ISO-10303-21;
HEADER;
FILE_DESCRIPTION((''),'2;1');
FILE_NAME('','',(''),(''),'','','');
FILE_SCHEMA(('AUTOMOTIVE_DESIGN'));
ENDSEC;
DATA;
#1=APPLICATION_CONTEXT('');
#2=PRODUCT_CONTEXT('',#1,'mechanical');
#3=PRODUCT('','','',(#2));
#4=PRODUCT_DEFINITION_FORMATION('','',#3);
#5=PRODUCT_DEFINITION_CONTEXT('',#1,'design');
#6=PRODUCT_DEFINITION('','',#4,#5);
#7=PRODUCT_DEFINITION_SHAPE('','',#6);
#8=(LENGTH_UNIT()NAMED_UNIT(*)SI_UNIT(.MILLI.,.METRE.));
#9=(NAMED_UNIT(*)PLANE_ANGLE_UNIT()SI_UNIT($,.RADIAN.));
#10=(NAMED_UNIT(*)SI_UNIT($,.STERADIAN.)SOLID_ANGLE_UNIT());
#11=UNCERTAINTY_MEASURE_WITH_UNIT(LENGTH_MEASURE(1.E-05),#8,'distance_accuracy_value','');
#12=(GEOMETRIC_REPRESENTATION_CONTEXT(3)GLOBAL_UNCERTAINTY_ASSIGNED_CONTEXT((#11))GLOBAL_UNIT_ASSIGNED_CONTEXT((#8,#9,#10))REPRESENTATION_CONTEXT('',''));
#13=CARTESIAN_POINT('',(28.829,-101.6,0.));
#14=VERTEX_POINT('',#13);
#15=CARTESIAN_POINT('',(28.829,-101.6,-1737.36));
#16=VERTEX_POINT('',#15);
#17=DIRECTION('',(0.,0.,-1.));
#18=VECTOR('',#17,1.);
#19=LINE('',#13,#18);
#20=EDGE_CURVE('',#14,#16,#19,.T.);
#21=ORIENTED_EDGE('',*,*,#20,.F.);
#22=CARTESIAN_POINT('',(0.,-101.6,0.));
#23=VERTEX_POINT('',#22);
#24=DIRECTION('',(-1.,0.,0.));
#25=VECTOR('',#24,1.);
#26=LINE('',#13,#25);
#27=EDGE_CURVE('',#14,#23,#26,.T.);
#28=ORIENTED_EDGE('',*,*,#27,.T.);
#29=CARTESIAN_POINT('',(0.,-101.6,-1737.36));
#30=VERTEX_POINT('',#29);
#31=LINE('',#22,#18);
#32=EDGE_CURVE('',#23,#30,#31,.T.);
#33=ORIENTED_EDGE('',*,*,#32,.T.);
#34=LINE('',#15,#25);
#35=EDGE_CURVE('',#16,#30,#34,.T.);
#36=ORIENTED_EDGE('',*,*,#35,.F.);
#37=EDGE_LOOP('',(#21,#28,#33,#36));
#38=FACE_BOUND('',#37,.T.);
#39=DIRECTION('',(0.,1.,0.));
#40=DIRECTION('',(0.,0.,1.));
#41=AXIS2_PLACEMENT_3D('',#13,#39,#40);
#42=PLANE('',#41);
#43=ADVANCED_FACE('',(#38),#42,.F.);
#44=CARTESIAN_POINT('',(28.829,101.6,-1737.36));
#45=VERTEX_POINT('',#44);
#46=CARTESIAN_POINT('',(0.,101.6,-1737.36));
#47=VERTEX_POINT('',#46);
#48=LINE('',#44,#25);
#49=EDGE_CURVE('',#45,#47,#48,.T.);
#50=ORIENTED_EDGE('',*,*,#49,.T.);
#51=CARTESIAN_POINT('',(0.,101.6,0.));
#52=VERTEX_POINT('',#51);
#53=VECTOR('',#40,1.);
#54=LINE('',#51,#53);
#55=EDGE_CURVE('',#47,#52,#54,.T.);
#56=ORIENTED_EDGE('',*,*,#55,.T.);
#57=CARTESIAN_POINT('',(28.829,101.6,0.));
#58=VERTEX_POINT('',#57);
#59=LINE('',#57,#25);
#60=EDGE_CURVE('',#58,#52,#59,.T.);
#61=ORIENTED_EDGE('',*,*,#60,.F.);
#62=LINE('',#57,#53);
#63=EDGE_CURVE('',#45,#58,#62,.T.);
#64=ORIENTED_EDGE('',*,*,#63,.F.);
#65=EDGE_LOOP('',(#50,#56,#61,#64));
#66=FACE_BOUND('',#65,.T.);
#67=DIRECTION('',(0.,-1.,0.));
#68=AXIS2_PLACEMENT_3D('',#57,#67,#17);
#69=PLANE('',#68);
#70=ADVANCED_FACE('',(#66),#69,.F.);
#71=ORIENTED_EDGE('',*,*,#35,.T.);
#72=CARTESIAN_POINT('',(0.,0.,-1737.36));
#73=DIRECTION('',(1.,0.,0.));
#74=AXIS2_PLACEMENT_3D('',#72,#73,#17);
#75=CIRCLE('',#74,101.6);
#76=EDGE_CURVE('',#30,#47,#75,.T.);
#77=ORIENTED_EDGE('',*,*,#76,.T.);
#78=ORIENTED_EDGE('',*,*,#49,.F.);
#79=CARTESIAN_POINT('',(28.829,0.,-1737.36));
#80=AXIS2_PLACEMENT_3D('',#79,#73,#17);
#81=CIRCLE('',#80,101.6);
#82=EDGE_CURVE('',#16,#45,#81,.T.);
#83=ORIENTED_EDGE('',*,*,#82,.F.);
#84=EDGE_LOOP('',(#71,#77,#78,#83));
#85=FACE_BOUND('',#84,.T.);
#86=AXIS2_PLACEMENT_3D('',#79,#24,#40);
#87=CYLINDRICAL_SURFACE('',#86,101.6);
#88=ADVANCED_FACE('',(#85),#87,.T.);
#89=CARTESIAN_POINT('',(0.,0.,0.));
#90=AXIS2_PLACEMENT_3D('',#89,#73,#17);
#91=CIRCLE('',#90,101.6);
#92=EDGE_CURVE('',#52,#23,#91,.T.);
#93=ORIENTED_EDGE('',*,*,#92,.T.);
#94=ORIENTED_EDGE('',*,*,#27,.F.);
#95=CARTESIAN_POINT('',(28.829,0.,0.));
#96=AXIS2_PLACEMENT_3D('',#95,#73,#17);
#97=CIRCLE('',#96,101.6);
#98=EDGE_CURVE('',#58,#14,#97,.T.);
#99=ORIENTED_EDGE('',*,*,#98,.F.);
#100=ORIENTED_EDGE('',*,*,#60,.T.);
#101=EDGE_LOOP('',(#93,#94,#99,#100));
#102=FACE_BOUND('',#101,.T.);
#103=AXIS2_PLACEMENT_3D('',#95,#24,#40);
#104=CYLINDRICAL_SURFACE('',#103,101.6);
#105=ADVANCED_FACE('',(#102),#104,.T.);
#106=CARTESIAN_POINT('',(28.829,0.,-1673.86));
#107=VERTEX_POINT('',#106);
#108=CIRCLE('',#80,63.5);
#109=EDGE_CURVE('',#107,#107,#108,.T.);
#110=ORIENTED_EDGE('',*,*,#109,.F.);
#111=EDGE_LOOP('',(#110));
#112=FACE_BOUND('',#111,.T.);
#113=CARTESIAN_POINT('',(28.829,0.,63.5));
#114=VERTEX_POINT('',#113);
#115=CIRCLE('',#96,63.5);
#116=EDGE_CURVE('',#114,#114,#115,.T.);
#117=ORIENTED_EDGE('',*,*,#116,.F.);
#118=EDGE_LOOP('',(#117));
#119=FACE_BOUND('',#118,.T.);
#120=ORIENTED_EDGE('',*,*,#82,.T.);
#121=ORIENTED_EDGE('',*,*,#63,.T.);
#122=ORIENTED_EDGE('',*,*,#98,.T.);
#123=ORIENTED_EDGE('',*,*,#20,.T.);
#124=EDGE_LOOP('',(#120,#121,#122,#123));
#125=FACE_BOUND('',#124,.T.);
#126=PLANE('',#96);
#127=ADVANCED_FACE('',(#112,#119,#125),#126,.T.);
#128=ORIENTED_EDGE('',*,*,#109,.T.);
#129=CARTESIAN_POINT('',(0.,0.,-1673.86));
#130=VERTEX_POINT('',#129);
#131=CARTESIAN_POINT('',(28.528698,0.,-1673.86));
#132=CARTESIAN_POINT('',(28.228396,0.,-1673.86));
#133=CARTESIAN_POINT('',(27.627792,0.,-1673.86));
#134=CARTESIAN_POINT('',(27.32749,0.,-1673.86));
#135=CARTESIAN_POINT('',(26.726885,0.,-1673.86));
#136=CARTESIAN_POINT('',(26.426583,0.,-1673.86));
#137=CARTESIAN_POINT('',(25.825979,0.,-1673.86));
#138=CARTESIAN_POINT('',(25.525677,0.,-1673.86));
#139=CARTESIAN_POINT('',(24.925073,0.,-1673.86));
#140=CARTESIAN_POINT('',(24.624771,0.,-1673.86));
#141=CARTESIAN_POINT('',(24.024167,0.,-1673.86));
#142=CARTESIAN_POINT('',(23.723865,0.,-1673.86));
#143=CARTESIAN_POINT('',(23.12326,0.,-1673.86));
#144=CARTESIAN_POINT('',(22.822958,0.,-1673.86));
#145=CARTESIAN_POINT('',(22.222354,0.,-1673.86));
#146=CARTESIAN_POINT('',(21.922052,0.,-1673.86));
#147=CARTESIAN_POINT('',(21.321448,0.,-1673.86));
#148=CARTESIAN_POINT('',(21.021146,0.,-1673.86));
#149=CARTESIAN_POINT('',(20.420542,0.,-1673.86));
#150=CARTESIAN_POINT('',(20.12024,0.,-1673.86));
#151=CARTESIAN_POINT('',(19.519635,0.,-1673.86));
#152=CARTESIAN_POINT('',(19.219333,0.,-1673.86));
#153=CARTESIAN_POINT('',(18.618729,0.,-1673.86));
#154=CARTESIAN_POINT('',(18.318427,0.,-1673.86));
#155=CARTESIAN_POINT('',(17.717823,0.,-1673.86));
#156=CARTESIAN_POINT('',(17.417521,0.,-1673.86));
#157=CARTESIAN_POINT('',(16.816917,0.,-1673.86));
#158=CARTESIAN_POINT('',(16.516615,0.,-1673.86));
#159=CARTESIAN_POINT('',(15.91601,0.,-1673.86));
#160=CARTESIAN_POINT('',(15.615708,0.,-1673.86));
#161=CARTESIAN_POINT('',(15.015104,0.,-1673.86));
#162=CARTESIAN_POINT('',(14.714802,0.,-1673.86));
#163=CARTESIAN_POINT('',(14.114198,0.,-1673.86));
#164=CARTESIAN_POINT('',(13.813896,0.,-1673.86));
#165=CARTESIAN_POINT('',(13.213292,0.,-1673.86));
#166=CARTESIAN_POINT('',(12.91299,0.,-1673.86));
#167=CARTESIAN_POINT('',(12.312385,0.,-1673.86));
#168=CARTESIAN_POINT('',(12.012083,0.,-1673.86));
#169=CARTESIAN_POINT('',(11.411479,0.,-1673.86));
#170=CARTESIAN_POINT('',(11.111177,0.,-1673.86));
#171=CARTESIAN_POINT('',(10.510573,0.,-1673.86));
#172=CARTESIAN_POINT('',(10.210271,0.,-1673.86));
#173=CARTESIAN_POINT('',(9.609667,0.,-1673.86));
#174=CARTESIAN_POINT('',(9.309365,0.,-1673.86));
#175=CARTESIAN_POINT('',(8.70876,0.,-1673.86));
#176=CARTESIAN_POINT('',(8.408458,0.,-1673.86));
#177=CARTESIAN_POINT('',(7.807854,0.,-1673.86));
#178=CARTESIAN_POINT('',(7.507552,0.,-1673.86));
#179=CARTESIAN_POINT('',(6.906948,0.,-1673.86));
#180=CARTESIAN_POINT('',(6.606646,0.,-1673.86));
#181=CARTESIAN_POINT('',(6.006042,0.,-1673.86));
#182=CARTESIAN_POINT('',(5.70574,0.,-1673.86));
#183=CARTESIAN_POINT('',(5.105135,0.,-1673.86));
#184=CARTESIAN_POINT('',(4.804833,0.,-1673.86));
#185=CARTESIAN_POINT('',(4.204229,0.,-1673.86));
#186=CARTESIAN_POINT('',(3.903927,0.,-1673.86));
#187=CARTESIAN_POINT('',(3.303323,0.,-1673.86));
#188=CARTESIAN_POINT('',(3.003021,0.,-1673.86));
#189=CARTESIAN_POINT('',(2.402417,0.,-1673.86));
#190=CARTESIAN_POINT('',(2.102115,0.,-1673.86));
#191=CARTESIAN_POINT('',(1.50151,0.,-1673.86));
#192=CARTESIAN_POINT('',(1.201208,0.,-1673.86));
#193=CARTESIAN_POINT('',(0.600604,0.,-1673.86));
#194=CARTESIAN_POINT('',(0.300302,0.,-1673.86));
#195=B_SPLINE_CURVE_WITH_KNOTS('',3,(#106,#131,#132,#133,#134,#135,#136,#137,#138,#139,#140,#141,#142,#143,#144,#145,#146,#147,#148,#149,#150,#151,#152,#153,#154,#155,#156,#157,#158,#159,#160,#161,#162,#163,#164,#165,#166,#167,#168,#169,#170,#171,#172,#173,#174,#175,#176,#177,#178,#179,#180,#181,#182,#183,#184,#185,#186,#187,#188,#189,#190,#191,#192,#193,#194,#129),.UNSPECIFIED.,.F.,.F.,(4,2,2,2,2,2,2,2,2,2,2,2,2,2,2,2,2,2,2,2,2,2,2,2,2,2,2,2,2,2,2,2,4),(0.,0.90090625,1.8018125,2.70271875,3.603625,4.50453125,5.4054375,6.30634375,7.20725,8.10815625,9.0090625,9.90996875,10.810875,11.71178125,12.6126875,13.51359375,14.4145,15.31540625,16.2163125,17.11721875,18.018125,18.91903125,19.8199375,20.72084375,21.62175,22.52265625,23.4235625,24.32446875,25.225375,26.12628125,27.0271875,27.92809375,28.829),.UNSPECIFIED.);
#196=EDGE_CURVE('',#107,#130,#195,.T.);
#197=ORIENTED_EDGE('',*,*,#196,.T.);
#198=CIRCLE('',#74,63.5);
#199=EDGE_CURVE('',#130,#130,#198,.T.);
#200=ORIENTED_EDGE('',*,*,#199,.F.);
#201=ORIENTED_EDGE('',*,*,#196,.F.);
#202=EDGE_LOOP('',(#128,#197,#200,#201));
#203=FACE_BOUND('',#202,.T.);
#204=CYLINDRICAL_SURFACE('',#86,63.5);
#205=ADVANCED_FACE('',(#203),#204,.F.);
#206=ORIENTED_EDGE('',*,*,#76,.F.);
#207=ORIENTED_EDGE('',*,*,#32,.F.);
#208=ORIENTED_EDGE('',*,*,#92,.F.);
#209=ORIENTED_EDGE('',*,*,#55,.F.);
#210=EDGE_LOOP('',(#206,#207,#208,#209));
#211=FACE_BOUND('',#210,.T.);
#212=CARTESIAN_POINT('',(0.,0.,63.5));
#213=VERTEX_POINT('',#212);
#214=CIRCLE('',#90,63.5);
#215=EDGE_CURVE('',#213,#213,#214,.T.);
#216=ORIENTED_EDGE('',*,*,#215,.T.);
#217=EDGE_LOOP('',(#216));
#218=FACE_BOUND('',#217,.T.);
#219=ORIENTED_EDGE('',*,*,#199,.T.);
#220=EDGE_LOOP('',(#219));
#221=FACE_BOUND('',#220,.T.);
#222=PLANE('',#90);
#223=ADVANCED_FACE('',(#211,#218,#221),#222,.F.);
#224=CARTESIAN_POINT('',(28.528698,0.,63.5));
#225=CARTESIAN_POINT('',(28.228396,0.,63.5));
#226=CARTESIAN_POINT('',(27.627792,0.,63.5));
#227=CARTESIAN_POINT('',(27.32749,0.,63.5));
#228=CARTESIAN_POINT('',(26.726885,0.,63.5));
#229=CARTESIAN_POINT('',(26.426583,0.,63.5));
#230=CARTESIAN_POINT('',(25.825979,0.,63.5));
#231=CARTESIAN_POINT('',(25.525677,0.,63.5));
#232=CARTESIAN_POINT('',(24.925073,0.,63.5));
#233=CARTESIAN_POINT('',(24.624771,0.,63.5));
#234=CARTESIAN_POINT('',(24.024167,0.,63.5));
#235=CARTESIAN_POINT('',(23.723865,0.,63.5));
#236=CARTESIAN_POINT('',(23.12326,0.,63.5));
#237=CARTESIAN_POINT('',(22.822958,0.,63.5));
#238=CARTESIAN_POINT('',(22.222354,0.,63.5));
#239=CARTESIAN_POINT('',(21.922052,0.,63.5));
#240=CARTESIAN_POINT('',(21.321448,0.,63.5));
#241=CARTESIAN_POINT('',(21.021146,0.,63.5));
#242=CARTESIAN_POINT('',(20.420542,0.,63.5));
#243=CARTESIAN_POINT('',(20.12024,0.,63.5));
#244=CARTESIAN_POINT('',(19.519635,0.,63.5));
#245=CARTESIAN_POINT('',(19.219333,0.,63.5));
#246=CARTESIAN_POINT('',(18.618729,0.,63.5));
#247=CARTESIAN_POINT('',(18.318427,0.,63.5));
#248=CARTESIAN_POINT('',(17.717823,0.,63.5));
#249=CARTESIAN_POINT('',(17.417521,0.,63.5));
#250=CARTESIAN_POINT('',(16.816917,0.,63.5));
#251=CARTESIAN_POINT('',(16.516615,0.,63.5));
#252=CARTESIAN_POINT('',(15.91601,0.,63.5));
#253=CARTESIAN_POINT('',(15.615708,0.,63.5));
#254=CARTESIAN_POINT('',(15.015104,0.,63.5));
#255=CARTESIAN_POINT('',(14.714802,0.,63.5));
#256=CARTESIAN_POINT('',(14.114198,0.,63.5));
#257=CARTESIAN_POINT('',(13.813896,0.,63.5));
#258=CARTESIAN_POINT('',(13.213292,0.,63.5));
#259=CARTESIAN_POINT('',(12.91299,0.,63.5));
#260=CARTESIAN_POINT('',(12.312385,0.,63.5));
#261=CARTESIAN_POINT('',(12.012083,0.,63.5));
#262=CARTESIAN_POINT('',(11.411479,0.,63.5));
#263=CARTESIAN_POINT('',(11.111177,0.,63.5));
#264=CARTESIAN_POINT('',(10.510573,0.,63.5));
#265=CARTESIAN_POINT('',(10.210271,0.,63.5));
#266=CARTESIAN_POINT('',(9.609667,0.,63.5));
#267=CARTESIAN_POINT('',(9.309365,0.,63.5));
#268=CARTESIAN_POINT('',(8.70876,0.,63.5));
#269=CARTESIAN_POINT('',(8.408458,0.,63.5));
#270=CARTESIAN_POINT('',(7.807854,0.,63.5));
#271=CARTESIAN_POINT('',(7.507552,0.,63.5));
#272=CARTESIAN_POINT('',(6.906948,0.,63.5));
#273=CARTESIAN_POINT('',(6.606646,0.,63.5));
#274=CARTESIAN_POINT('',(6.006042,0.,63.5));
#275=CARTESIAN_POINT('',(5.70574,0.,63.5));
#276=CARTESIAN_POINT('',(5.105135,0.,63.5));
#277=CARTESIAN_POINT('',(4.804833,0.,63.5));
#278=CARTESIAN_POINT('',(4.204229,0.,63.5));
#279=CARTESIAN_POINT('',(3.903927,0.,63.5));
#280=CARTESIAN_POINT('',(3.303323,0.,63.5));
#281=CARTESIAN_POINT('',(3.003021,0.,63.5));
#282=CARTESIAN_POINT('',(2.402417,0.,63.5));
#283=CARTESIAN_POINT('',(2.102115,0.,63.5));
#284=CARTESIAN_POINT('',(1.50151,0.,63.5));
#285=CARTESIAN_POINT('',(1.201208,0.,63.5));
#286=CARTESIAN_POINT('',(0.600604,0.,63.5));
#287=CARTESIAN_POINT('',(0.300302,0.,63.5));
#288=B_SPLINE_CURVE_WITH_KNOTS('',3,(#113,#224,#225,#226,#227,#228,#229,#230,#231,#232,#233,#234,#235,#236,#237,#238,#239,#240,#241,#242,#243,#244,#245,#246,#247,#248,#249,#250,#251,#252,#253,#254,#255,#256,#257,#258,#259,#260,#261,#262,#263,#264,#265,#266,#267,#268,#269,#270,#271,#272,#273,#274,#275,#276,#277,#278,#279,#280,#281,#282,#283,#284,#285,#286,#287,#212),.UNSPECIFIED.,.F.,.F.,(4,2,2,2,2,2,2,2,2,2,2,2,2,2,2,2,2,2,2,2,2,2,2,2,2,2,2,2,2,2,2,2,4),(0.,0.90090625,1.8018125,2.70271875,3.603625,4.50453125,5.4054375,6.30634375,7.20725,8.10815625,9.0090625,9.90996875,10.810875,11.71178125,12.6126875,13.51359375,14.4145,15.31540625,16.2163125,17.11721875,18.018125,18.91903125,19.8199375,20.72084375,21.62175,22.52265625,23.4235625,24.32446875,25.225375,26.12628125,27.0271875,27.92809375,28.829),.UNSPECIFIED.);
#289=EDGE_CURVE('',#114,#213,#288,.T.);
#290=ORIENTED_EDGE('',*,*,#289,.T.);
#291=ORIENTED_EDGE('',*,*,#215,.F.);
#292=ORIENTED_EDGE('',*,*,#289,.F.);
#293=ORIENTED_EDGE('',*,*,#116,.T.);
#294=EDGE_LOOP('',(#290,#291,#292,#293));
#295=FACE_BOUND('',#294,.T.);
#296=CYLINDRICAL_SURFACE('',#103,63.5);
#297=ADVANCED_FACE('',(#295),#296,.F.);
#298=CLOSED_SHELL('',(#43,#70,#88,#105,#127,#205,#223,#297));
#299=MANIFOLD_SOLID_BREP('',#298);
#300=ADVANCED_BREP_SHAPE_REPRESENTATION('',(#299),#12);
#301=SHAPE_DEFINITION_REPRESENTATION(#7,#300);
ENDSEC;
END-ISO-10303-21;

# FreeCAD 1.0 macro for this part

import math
import FreeCAD as App
import Part
import Sketcher
from FreeCAD import Vector
Q = App.Units.Quantity

doc = App.newDocument("Part")
body = doc.addObject("PartDesign::Body", "Body")

# Sketch on YZ plane
sketch1 = body.newObject("Sketcher::SketchObject", "Sketch")
sketch1.AttachmentSupport = (doc.getObject("YZ_Plane"), [""])
sketch1.MapMode = "FlatFace"
sketch1.addGeometry([
    Part.LineSegment(Vector(101.6, -1737.36, 0), Vector(101.6, 0, 0)),  # 0
    Part.ArcOfCircle(Part.Circle(Vector(0, 0, 0), Vector(0, 0, 1), 101.6), math.radians(0), math.radians(180)),  # 1
    Part.LineSegment(Vector(-101.6, 0, 0), Vector(-101.6, -1737.36, 0)),  # 2
    Part.ArcOfCircle(Part.Circle(Vector(0, -1737.36, 0), Vector(0, 0, 1), 101.6), math.radians(180), math.radians(360)),  # 3
    Part.Circle(Vector(0, -1737.36, 0), Vector(0, 0, 1), 63.5),  # 4
    Part.Circle(Vector(0, 0, 0), Vector(0, 0, 1), 63.5),  # 5
], False)
sketch1.addConstraint([
    Sketcher.Constraint("Tangent", 0, 2, 1, 1),
    Sketcher.Constraint("Tangent", 1, 2, 2, 1),
    Sketcher.Constraint("Tangent", 2, 2, 3, 1),
    Sketcher.Constraint("Tangent", 3, 2, 0, 1),
    Sketcher.Constraint("Vertical", 0),
    Sketcher.Constraint("Vertical", 2),
    Sketcher.Constraint("Coincident", 1, 3, -1, 1),
    Sketcher.Constraint("Coincident", 5, 3, -1, 1),
    Sketcher.Constraint("Coincident", 4, 3, 3, 3),
    Sketcher.Constraint("Equal", 4, 5),
    Sketcher.Constraint("Diameter", 4, Q("5 in")),
    Sketcher.Constraint("Radius", 1, Q("4 in")),
    Sketcher.Constraint("DistanceY", 0, 1, 0, 2, Q("68.4 in")),
])
pad1 = body.newObject("PartDesign::Pad", "Pad")
pad1.Profile = sketch1
pad1.Length = Q("1.135 in")

doc.recompute()
